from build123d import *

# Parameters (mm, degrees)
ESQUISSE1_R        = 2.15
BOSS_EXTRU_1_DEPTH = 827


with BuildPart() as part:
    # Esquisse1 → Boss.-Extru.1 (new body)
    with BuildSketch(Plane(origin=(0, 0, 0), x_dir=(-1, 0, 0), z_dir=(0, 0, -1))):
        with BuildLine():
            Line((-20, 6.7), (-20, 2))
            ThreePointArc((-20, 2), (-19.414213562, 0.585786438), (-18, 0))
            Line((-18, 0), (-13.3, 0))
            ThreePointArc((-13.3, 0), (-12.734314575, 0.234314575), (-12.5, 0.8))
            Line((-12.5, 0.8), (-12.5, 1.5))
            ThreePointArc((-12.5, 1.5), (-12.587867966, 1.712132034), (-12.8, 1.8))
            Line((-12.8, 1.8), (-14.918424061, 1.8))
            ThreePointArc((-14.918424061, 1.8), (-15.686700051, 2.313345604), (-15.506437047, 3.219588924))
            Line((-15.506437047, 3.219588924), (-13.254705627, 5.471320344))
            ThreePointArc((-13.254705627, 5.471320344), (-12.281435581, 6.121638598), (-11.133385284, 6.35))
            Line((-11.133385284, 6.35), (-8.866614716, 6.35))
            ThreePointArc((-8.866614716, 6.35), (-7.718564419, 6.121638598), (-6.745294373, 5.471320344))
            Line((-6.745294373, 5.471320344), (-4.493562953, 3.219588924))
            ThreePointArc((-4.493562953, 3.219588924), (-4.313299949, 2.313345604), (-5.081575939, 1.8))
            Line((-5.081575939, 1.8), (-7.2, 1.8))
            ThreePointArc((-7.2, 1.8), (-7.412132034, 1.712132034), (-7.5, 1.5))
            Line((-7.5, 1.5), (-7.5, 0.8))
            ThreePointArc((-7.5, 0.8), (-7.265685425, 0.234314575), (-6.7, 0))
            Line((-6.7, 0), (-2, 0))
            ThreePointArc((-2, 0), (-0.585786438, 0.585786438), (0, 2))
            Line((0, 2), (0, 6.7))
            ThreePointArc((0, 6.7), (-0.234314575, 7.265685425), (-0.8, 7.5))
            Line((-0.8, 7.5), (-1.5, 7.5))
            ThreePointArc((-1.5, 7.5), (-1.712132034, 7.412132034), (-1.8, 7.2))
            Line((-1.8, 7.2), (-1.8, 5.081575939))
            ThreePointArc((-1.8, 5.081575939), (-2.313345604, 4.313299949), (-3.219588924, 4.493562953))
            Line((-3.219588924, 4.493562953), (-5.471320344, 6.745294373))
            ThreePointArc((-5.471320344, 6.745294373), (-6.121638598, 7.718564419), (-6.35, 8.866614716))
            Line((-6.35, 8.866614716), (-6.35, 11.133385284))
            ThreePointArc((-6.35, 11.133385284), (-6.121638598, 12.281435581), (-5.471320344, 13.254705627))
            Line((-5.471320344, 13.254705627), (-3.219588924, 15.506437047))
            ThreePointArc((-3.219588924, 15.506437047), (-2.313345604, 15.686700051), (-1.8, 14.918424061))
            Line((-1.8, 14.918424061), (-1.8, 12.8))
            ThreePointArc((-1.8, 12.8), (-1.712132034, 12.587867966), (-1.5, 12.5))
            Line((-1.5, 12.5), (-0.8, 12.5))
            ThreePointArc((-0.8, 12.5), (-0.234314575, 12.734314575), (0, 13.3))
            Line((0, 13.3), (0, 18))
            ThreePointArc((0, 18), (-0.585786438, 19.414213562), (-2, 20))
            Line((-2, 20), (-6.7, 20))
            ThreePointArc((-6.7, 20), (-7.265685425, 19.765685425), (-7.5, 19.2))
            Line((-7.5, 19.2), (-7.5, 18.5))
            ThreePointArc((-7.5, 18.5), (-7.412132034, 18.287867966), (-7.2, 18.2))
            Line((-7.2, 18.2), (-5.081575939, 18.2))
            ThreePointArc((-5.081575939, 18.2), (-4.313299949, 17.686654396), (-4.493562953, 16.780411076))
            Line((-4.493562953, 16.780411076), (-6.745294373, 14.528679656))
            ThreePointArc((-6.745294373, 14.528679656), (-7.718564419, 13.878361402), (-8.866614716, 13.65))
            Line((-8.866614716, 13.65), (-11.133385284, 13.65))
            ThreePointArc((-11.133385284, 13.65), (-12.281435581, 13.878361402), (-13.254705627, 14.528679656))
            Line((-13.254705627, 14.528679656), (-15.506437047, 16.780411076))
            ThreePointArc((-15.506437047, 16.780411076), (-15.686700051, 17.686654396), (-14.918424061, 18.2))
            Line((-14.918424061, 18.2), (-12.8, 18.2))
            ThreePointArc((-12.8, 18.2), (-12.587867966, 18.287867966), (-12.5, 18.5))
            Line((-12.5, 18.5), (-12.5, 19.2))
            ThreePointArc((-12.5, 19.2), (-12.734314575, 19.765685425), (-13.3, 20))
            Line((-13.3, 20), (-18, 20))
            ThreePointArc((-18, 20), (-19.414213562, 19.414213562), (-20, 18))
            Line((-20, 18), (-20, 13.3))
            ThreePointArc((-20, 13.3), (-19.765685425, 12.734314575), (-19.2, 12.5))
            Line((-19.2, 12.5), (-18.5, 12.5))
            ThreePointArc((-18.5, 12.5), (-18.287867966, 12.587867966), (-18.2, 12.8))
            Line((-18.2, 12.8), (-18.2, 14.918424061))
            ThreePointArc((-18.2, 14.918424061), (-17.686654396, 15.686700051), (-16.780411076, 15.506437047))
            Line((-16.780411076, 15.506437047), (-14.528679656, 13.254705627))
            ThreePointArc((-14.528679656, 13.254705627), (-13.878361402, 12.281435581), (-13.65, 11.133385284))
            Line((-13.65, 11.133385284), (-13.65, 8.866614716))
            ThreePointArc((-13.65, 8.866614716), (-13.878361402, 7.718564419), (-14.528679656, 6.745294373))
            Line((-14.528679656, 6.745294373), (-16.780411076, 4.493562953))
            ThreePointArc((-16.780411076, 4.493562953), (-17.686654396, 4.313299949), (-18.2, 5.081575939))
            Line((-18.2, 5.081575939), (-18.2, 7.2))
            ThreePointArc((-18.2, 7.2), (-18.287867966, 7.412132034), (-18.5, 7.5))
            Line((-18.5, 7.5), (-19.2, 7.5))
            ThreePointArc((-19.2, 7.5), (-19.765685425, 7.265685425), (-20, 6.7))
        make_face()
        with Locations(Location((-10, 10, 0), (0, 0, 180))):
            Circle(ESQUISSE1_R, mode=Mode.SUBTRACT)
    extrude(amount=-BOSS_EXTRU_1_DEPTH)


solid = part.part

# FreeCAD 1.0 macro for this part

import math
import FreeCAD as App
import Part
import Sketcher
Q = App.Units.Quantity

doc = App.newDocument("Part")
params = doc.addObject("Spreadsheet::Sheet", "Params")
for row, (alias, value) in enumerate([
    ("sketch1_radius", "2 mm"),
    ("sketch1_radius2", "3 mm"),
    ("sketch1_diameter", "4.3 mm"),
    ("sketch1_radius3", "0.8 mm"),
    ("sketch1_radius4", "0.3 mm"),
    ("pad1_length", "827 mm"),
], start=1):
    params.set(f"A{row}", alias)
    params.set(f"B{row}", "=" + value)
    params.setAlias(f"B{row}", alias)

body = doc.addObject("PartDesign::Body", "Body")

# Sketch on XY plane
sketch1 = body.newObject("Sketcher::SketchObject", "Sketch")
sketch1.AttachmentSupport = (doc.getObject("XY_Plane"), [""])
sketch1.MapMode = "FlatFace"
sketch1.addGeometry([
    Part.LineSegment(App.Vector(20, 6.7, 0), App.Vector(20, 2, 0)),  # 0
    Part.ArcOfCircle(Part.Circle(App.Vector(18, 2, 0), App.Vector(0, 0, 1), 2), math.radians(-90), math.radians(0)),  # 1
    Part.LineSegment(App.Vector(18, 0, 0), App.Vector(13.3, 0, 0)),  # 2
    Part.ArcOfCircle(Part.Circle(App.Vector(13.3, 0.8, 0), App.Vector(0, 0, 1), 0.8), math.radians(180), math.radians(270)),  # 3
    Part.LineSegment(App.Vector(12.5, 0.8, 0), App.Vector(12.5, 1.5, 0)),  # 4
    Part.ArcOfCircle(Part.Circle(App.Vector(12.8, 1.5, 0), App.Vector(0, 0, 1), 0.3), math.radians(90), math.radians(180)),  # 5
    Part.LineSegment(App.Vector(12.8, 1.8, 0), App.Vector(14.918424, 1.8, 0)),  # 6
    Part.ArcOfCircle(Part.Circle(App.Vector(14.918424, 2.631576, 0), App.Vector(0, 0, 1), 0.831576), math.radians(-90), math.radians(45)),  # 7
    Part.LineSegment(App.Vector(15.506437, 3.219589, 0), App.Vector(13.254706, 5.47132, 0)),  # 8
    Part.ArcOfCircle(Part.Circle(App.Vector(11.133385, 3.35, 0), App.Vector(0, 0, 1), 3), math.radians(45), math.radians(90)),  # 9
    Part.LineSegment(App.Vector(11.133385, 6.35, 0), App.Vector(8.866615, 6.35, 0)),  # 10
    Part.ArcOfCircle(Part.Circle(App.Vector(8.866615, 3.35, 0), App.Vector(0, 0, 1), 3), math.radians(90), math.radians(135)),  # 11
    Part.LineSegment(App.Vector(6.745294, 5.47132, 0), App.Vector(4.493563, 3.219589, 0)),  # 12
    Part.ArcOfCircle(Part.Circle(App.Vector(5.081576, 2.631576, 0), App.Vector(0, 0, 1), 0.831576), math.radians(135), math.radians(270)),  # 13
    Part.LineSegment(App.Vector(5.081576, 1.8, 0), App.Vector(7.2, 1.8, 0)),  # 14
    Part.ArcOfCircle(Part.Circle(App.Vector(7.2, 1.5, 0), App.Vector(0, 0, 1), 0.3), math.radians(0), math.radians(90)),  # 15
    Part.LineSegment(App.Vector(7.5, 1.5, 0), App.Vector(7.5, 0.8, 0)),  # 16
    Part.ArcOfCircle(Part.Circle(App.Vector(6.7, 0.8, 0), App.Vector(0, 0, 1), 0.8), math.radians(-90), math.radians(0)),  # 17
    Part.LineSegment(App.Vector(6.7, 0, 0), App.Vector(2, 0, 0)),  # 18
    Part.ArcOfCircle(Part.Circle(App.Vector(2, 2, 0), App.Vector(0, 0, 1), 2), math.radians(-180), math.radians(-90)),  # 19
    Part.LineSegment(App.Vector(0, 2, 0), App.Vector(0, 6.7, 0)),  # 20
    Part.ArcOfCircle(Part.Circle(App.Vector(0.8, 6.7, 0), App.Vector(0, 0, 1), 0.8), math.radians(90), math.radians(180)),  # 21
    Part.LineSegment(App.Vector(0.8, 7.5, 0), App.Vector(1.5, 7.5, 0)),  # 22
    Part.ArcOfCircle(Part.Circle(App.Vector(1.5, 7.2, 0), App.Vector(0, 0, 1), 0.3), math.radians(0), math.radians(90)),  # 23
    Part.LineSegment(App.Vector(1.8, 7.2, 0), App.Vector(1.8, 5.081576, 0)),  # 24
    Part.ArcOfCircle(Part.Circle(App.Vector(2.631576, 5.081576, 0), App.Vector(0, 0, 1), 0.831576), math.radians(180), math.radians(315)),  # 25
    Part.LineSegment(App.Vector(3.219589, 4.493563, 0), App.Vector(5.47132, 6.745294, 0)),  # 26
    Part.ArcOfCircle(Part.Circle(App.Vector(3.35, 8.866615, 0), App.Vector(0, 0, 1), 3), math.radians(-45), math.radians(0)),  # 27
    Part.LineSegment(App.Vector(6.35, 8.866615, 0), App.Vector(6.35, 11.133385, 0)),  # 28
    Part.ArcOfCircle(Part.Circle(App.Vector(3.35, 11.133385, 0), App.Vector(0, 0, 1), 3), math.radians(0), math.radians(45)),  # 29
    Part.LineSegment(App.Vector(5.47132, 13.254706, 0), App.Vector(3.219589, 15.506437, 0)),  # 30
    Part.ArcOfCircle(Part.Circle(App.Vector(2.631576, 14.918424, 0), App.Vector(0, 0, 1), 0.831576), math.radians(45), math.radians(180)),  # 31
    Part.LineSegment(App.Vector(1.8, 14.918424, 0), App.Vector(1.8, 12.8, 0)),  # 32
    Part.ArcOfCircle(Part.Circle(App.Vector(1.5, 12.8, 0), App.Vector(0, 0, 1), 0.3), math.radians(-90), math.radians(0)),  # 33
    Part.LineSegment(App.Vector(1.5, 12.5, 0), App.Vector(0.8, 12.5, 0)),  # 34
    Part.ArcOfCircle(Part.Circle(App.Vector(0.8, 13.3, 0), App.Vector(0, 0, 1), 0.8), math.radians(180), math.radians(270)),  # 35
    Part.LineSegment(App.Vector(0, 13.3, 0), App.Vector(0, 18, 0)),  # 36
    Part.ArcOfCircle(Part.Circle(App.Vector(2, 18, 0), App.Vector(0, 0, 1), 2), math.radians(90), math.radians(180)),  # 37
    Part.LineSegment(App.Vector(2, 20, 0), App.Vector(6.7, 20, 0)),  # 38
    Part.ArcOfCircle(Part.Circle(App.Vector(6.7, 19.2, 0), App.Vector(0, 0, 1), 0.8), math.radians(0), math.radians(90)),  # 39
    Part.LineSegment(App.Vector(7.5, 19.2, 0), App.Vector(7.5, 18.5, 0)),  # 40
    Part.ArcOfCircle(Part.Circle(App.Vector(7.2, 18.5, 0), App.Vector(0, 0, 1), 0.3), math.radians(-90), math.radians(0)),  # 41
    Part.LineSegment(App.Vector(7.2, 18.2, 0), App.Vector(5.081576, 18.2, 0)),  # 42
    Part.ArcOfCircle(Part.Circle(App.Vector(5.081576, 17.368424, 0), App.Vector(0, 0, 1), 0.831576), math.radians(90), math.radians(225)),  # 43
    Part.LineSegment(App.Vector(4.493563, 16.780411, 0), App.Vector(6.745294, 14.52868, 0)),  # 44
    Part.ArcOfCircle(Part.Circle(App.Vector(8.866615, 16.65, 0), App.Vector(0, 0, 1), 3), math.radians(-135), math.radians(-90)),  # 45
    Part.LineSegment(App.Vector(8.866615, 13.65, 0), App.Vector(11.133385, 13.65, 0)),  # 46
    Part.ArcOfCircle(Part.Circle(App.Vector(11.133385, 16.65, 0), App.Vector(0, 0, 1), 3), math.radians(-90), math.radians(-45)),  # 47
    Part.LineSegment(App.Vector(13.254706, 14.52868, 0), App.Vector(15.506437, 16.780411, 0)),  # 48
    Part.ArcOfCircle(Part.Circle(App.Vector(14.918424, 17.368424, 0), App.Vector(0, 0, 1), 0.831576), math.radians(-45), math.radians(90)),  # 49
    Part.LineSegment(App.Vector(14.918424, 18.2, 0), App.Vector(12.8, 18.2, 0)),  # 50
    Part.ArcOfCircle(Part.Circle(App.Vector(12.8, 18.5, 0), App.Vector(0, 0, 1), 0.3), math.radians(-180), math.radians(-90)),  # 51
    Part.LineSegment(App.Vector(12.5, 18.5, 0), App.Vector(12.5, 19.2, 0)),  # 52
    Part.ArcOfCircle(Part.Circle(App.Vector(13.3, 19.2, 0), App.Vector(0, 0, 1), 0.8), math.radians(90), math.radians(180)),  # 53
    Part.LineSegment(App.Vector(13.3, 20, 0), App.Vector(18, 20, 0)),  # 54
    Part.ArcOfCircle(Part.Circle(App.Vector(18, 18, 0), App.Vector(0, 0, 1), 2), math.radians(0), math.radians(90)),  # 55
    Part.LineSegment(App.Vector(20, 18, 0), App.Vector(20, 13.3, 0)),  # 56
    Part.ArcOfCircle(Part.Circle(App.Vector(19.2, 13.3, 0), App.Vector(0, 0, 1), 0.8), math.radians(-90), math.radians(0)),  # 57
    Part.LineSegment(App.Vector(19.2, 12.5, 0), App.Vector(18.5, 12.5, 0)),  # 58
    Part.ArcOfCircle(Part.Circle(App.Vector(18.5, 12.8, 0), App.Vector(0, 0, 1), 0.3), math.radians(-180), math.radians(-90)),  # 59
    Part.LineSegment(App.Vector(18.2, 12.8, 0), App.Vector(18.2, 14.918424, 0)),  # 60
    Part.ArcOfCircle(Part.Circle(App.Vector(17.368424, 14.918424, 0), App.Vector(0, 0, 1), 0.831576), math.radians(0), math.radians(135)),  # 61
    Part.LineSegment(App.Vector(16.780411, 15.506437, 0), App.Vector(14.52868, 13.254706, 0)),  # 62
    Part.ArcOfCircle(Part.Circle(App.Vector(16.65, 11.133385, 0), App.Vector(0, 0, 1), 3), math.radians(135), math.radians(180)),  # 63
    Part.LineSegment(App.Vector(13.65, 11.133385, 0), App.Vector(13.65, 8.866615, 0)),  # 64
    Part.ArcOfCircle(Part.Circle(App.Vector(16.65, 8.866615, 0), App.Vector(0, 0, 1), 3), math.radians(180), math.radians(225)),  # 65
    Part.LineSegment(App.Vector(14.52868, 6.745294, 0), App.Vector(16.780411, 4.493563, 0)),  # 66
    Part.ArcOfCircle(Part.Circle(App.Vector(17.368424, 5.081576, 0), App.Vector(0, 0, 1), 0.831576), math.radians(-135), math.radians(0)),  # 67
    Part.LineSegment(App.Vector(18.2, 5.081576, 0), App.Vector(18.2, 7.2, 0)),  # 68
    Part.ArcOfCircle(Part.Circle(App.Vector(18.5, 7.2, 0), App.Vector(0, 0, 1), 0.3), math.radians(90), math.radians(180)),  # 69
    Part.LineSegment(App.Vector(18.5, 7.5, 0), App.Vector(19.2, 7.5, 0)),  # 70
    Part.ArcOfCircle(Part.Circle(App.Vector(19.2, 6.7, 0), App.Vector(0, 0, 1), 0.8), math.radians(0), math.radians(90)),  # 71
    Part.Circle(App.Vector(10, 10, 0), App.Vector(0, 0, 1), 2.15),  # 72
], False)
sketch1.addConstraint([
    Sketcher.Constraint("Tangent", 0, 2, 1, 2),
    Sketcher.Constraint("Tangent", 1, 1, 2, 1),
    Sketcher.Constraint("Tangent", 2, 2, 3, 2),
    Sketcher.Constraint("Tangent", 3, 1, 4, 1),
    Sketcher.Constraint("Tangent", 4, 2, 5, 2),
    Sketcher.Constraint("Tangent", 5, 1, 6, 1),
    Sketcher.Constraint("Tangent", 6, 2, 7, 1),
    Sketcher.Constraint("Tangent", 7, 2, 8, 1),
    Sketcher.Constraint("Tangent", 8, 2, 9, 1),
    Sketcher.Constraint("Tangent", 9, 2, 10, 1),
    Sketcher.Constraint("Tangent", 10, 2, 11, 1),
    Sketcher.Constraint("Tangent", 11, 2, 12, 1),
    Sketcher.Constraint("Tangent", 12, 2, 13, 1),
    Sketcher.Constraint("Tangent", 13, 2, 14, 1),
    Sketcher.Constraint("Tangent", 14, 2, 15, 2),
    Sketcher.Constraint("Tangent", 15, 1, 16, 1),
    Sketcher.Constraint("Tangent", 16, 2, 17, 2),
    Sketcher.Constraint("Tangent", 17, 1, 18, 1),
    Sketcher.Constraint("Tangent", 18, 2, 19, 2),
    Sketcher.Constraint("Tangent", 19, 1, 20, 1),
    Sketcher.Constraint("Tangent", 20, 2, 21, 2),
    Sketcher.Constraint("Tangent", 21, 1, 22, 1),
    Sketcher.Constraint("Tangent", 22, 2, 23, 2),
    Sketcher.Constraint("Tangent", 23, 1, 24, 1),
    Sketcher.Constraint("Tangent", 24, 2, 25, 1),
    Sketcher.Constraint("Tangent", 25, 2, 26, 1),
    Sketcher.Constraint("Tangent", 26, 2, 27, 1),
    Sketcher.Constraint("Tangent", 27, 2, 28, 1),
    Sketcher.Constraint("Tangent", 28, 2, 29, 1),
    Sketcher.Constraint("Tangent", 29, 2, 30, 1),
    Sketcher.Constraint("Tangent", 30, 2, 31, 1),
    Sketcher.Constraint("Tangent", 31, 2, 32, 1),
    Sketcher.Constraint("Tangent", 32, 2, 33, 2),
    Sketcher.Constraint("Tangent", 33, 1, 34, 1),
    Sketcher.Constraint("Tangent", 34, 2, 35, 2),
    Sketcher.Constraint("Tangent", 35, 1, 36, 1),
    Sketcher.Constraint("Tangent", 36, 2, 37, 2),
    Sketcher.Constraint("Tangent", 37, 1, 38, 1),
    Sketcher.Constraint("Tangent", 38, 2, 39, 2),
    Sketcher.Constraint("Tangent", 39, 1, 40, 1),
    Sketcher.Constraint("Tangent", 40, 2, 41, 2),
    Sketcher.Constraint("Tangent", 41, 1, 42, 1),
    Sketcher.Constraint("Tangent", 42, 2, 43, 1),
    Sketcher.Constraint("Tangent", 43, 2, 44, 1),
    Sketcher.Constraint("Tangent", 44, 2, 45, 1),
    Sketcher.Constraint("Tangent", 45, 2, 46, 1),
    Sketcher.Constraint("Tangent", 46, 2, 47, 1),
    Sketcher.Constraint("Tangent", 47, 2, 48, 1),
    Sketcher.Constraint("Tangent", 48, 2, 49, 1),
    Sketcher.Constraint("Tangent", 49, 2, 50, 1),
    Sketcher.Constraint("Tangent", 50, 2, 51, 2),
    Sketcher.Constraint("Tangent", 51, 1, 52, 1),
    Sketcher.Constraint("Tangent", 52, 2, 53, 2),
    Sketcher.Constraint("Tangent", 53, 1, 54, 1),
    Sketcher.Constraint("Tangent", 54, 2, 55, 2),
    Sketcher.Constraint("Tangent", 55, 1, 56, 1),
    Sketcher.Constraint("Tangent", 56, 2, 57, 2),
    Sketcher.Constraint("Tangent", 57, 1, 58, 1),
    Sketcher.Constraint("Tangent", 58, 2, 59, 2),
    Sketcher.Constraint("Tangent", 59, 1, 60, 1),
    Sketcher.Constraint("Tangent", 60, 2, 61, 1),
    Sketcher.Constraint("Tangent", 61, 2, 62, 1),
    Sketcher.Constraint("Tangent", 62, 2, 63, 1),
    Sketcher.Constraint("Tangent", 63, 2, 64, 1),
    Sketcher.Constraint("Tangent", 64, 2, 65, 1),
    Sketcher.Constraint("Tangent", 65, 2, 66, 1),
    Sketcher.Constraint("Tangent", 66, 2, 67, 1),
    Sketcher.Constraint("Tangent", 67, 2, 68, 1),
    Sketcher.Constraint("Tangent", 68, 2, 69, 2),
    Sketcher.Constraint("Tangent", 69, 1, 70, 1),
    Sketcher.Constraint("Tangent", 70, 2, 71, 2),
    Sketcher.Constraint("Tangent", 71, 1, 0, 1),
    Sketcher.Constraint("Vertical", 0),
    Sketcher.Constraint("Horizontal", 2),
    Sketcher.Constraint("Vertical", 4),
    Sketcher.Constraint("Horizontal", 6),
    Sketcher.Constraint("Horizontal", 10),
    Sketcher.Constraint("Horizontal", 14),
    Sketcher.Constraint("Vertical", 16),
    Sketcher.Constraint("Horizontal", 18),
    Sketcher.Constraint("Vertical", 20),
    Sketcher.Constraint("Horizontal", 22),
    Sketcher.Constraint("Vertical", 24),
    Sketcher.Constraint("Vertical", 28),
    Sketcher.Constraint("Vertical", 32),
    Sketcher.Constraint("Horizontal", 34),
    Sketcher.Constraint("Vertical", 36),
    Sketcher.Constraint("Horizontal", 38),
    Sketcher.Constraint("Vertical", 40),
    Sketcher.Constraint("Horizontal", 42),
    Sketcher.Constraint("Horizontal", 46),
    Sketcher.Constraint("Horizontal", 50),
    Sketcher.Constraint("Vertical", 52),
    Sketcher.Constraint("Horizontal", 54),
    Sketcher.Constraint("Vertical", 56),
    Sketcher.Constraint("Horizontal", 58),
    Sketcher.Constraint("Vertical", 60),
    Sketcher.Constraint("Vertical", 64),
    Sketcher.Constraint("Vertical", 68),
    Sketcher.Constraint("Horizontal", 70),
    Sketcher.Constraint("Equal", 9, 11),
    Sketcher.Constraint("Equal", 7, 13),
    Sketcher.Constraint("Equal", 5, 15),
    Sketcher.Constraint("Equal", 3, 17),
    Sketcher.Constraint("Equal", 1, 19),
    Sketcher.Constraint("Equal", 17, 21),
    Sketcher.Constraint("Equal", 15, 23),
    Sketcher.Constraint("Equal", 13, 25),
    Sketcher.Constraint("Equal", 11, 27),
    Sketcher.Constraint("Equal", 27, 29),
    Sketcher.Constraint("Equal", 25, 31),
    Sketcher.Constraint("Equal", 23, 33),
    Sketcher.Constraint("Equal", 21, 35),
    Sketcher.Constraint("Equal", 19, 37),
    Sketcher.Constraint("Equal", 35, 39),
    Sketcher.Constraint("Equal", 33, 41),
    Sketcher.Constraint("Equal", 31, 43),
    Sketcher.Constraint("Equal", 29, 45),
    Sketcher.Constraint("Equal", 45, 47),
    Sketcher.Constraint("Equal", 43, 49),
    Sketcher.Constraint("Equal", 41, 51),
    Sketcher.Constraint("Equal", 39, 53),
    Sketcher.Constraint("Equal", 37, 55),
    Sketcher.Constraint("Equal", 53, 57),
    Sketcher.Constraint("Equal", 51, 59),
    Sketcher.Constraint("Equal", 49, 61),
    Sketcher.Constraint("Equal", 47, 63),
    Sketcher.Constraint("Equal", 63, 65),
    Sketcher.Constraint("Equal", 61, 67),
    Sketcher.Constraint("Equal", 59, 69),
    Sketcher.Constraint("Equal", 57, 71),
    Sketcher.Constraint("PointOnObject", 1, 1, -1),
    Sketcher.Constraint("PointOnObject", 17, 1, -1),
    Sketcher.Constraint("PointOnObject", 19, 1, -2),
    Sketcher.Constraint("PointOnObject", 35, 1, -2),
    Sketcher.Constraint("Perpendicular", 8, 12),
    Sketcher.Constraint("Parallel", 12, 26),
    Sketcher.Constraint("Perpendicular", 26, 30),
    Sketcher.Constraint("Parallel", 30, 44),
    Sketcher.Constraint("Perpendicular", 44, 48),
    Sketcher.Constraint("Parallel", 48, 62),
    Sketcher.Constraint("Perpendicular", 62, 66),
    Sketcher.Constraint("Horizontal", 7, 3, 13, 3),
    Sketcher.Constraint("Horizontal", 43, 3, 49, 3),
    Sketcher.Constraint("Horizontal", 39, 3, 53, 3),
    Sketcher.Constraint("Horizontal", 35, 3, 57, 3),
    Sketcher.Constraint("Horizontal", 31, 3, 61, 3),
    Sketcher.Constraint("Horizontal", 29, 3, 63, 3),
    Sketcher.Constraint("Horizontal", 27, 3, 65, 3),
    Sketcher.Constraint("Horizontal", 25, 3, 67, 3),
    Sketcher.Constraint("Horizontal", 23, 3, 69, 3),
    Sketcher.Constraint("Horizontal", 8, 2, 11, 2),
    Sketcher.Constraint("Vertical", 25, 3, 31, 3),
    Sketcher.Constraint("Vertical", 17, 3, 39, 3),
    Sketcher.Constraint("Vertical", 13, 3, 43, 3),
    Sketcher.Constraint("Vertical", 11, 3, 45, 3),
    Sketcher.Constraint("Vertical", 9, 3, 47, 3),
    Sketcher.Constraint("Vertical", 5, 3, 51, 3),
    Sketcher.Constraint("Vertical", 1, 3, 55, 3),
    Sketcher.Constraint("Equal", 6, 14),
    Sketcher.Constraint("Equal", 2, 18),
    Sketcher.Constraint("Equal", 34, 58),
    Sketcher.Constraint("Equal", 54, 0),
    Sketcher.Constraint("Equal", 70, 4),
    Sketcher.Constraint("Equal", 50, 24),
    Sketcher.Constraint("Equal", 46, 28),
    Sketcher.Constraint("Equal", 24, 32),
    Sketcher.Constraint("Equal", 20, 36),
    Sketcher.Constraint("Equal", 16, 40),
    Sketcher.Constraint("Equal", 12, 26),
    Sketcher.Constraint("Radius", 1, Q("2 mm")),
    Sketcher.Constraint("Radius", 9, Q("3 mm")),
    Sketcher.Constraint("Diameter", 72, Q("4.3 mm")),
    Sketcher.Constraint("Radius", 3, Q("0.8 mm")),
    Sketcher.Constraint("Radius", 5, Q("0.3 mm")),
    Sketcher.Constraint("DistanceX", 2, 2, 2, 1, Q("4.7 mm")),
    Sketcher.Constraint("DistanceX", 22, 1, 22, 2, Q("0.7 mm")),
    Sketcher.Constraint("DistanceX", -1, 1, 1, 3, Q("18 mm")),
    Sketcher.Constraint("DistanceX", -1, 1, 72, 3, Q("10 mm")),
    Sketcher.Constraint("DistanceY", -1, 1, 72, 3, Q("10 mm")),
    Sketcher.Constraint("DistanceY", -1, 1, 9, 3, Q("3.35 mm")),
    Sketcher.Constraint("Radius", 7, Q("0.831576 mm")),
    Sketcher.Constraint("DistanceX", 10, 2, 10, 1, Q("2.266771 mm")),
])
sketch1.setExpression("Constraints[170]", "Params.sketch1_radius")
sketch1.setExpression("Constraints[171]", "Params.sketch1_radius2")
sketch1.setExpression("Constraints[172]", "Params.sketch1_diameter")
sketch1.setExpression("Constraints[173]", "Params.sketch1_radius3")
sketch1.setExpression("Constraints[174]", "Params.sketch1_radius4")
pad1 = body.newObject("PartDesign::Pad", "Pad")
pad1.Profile = sketch1
pad1.setExpression("Length", "Params.pad1_length")

doc.recompute()
